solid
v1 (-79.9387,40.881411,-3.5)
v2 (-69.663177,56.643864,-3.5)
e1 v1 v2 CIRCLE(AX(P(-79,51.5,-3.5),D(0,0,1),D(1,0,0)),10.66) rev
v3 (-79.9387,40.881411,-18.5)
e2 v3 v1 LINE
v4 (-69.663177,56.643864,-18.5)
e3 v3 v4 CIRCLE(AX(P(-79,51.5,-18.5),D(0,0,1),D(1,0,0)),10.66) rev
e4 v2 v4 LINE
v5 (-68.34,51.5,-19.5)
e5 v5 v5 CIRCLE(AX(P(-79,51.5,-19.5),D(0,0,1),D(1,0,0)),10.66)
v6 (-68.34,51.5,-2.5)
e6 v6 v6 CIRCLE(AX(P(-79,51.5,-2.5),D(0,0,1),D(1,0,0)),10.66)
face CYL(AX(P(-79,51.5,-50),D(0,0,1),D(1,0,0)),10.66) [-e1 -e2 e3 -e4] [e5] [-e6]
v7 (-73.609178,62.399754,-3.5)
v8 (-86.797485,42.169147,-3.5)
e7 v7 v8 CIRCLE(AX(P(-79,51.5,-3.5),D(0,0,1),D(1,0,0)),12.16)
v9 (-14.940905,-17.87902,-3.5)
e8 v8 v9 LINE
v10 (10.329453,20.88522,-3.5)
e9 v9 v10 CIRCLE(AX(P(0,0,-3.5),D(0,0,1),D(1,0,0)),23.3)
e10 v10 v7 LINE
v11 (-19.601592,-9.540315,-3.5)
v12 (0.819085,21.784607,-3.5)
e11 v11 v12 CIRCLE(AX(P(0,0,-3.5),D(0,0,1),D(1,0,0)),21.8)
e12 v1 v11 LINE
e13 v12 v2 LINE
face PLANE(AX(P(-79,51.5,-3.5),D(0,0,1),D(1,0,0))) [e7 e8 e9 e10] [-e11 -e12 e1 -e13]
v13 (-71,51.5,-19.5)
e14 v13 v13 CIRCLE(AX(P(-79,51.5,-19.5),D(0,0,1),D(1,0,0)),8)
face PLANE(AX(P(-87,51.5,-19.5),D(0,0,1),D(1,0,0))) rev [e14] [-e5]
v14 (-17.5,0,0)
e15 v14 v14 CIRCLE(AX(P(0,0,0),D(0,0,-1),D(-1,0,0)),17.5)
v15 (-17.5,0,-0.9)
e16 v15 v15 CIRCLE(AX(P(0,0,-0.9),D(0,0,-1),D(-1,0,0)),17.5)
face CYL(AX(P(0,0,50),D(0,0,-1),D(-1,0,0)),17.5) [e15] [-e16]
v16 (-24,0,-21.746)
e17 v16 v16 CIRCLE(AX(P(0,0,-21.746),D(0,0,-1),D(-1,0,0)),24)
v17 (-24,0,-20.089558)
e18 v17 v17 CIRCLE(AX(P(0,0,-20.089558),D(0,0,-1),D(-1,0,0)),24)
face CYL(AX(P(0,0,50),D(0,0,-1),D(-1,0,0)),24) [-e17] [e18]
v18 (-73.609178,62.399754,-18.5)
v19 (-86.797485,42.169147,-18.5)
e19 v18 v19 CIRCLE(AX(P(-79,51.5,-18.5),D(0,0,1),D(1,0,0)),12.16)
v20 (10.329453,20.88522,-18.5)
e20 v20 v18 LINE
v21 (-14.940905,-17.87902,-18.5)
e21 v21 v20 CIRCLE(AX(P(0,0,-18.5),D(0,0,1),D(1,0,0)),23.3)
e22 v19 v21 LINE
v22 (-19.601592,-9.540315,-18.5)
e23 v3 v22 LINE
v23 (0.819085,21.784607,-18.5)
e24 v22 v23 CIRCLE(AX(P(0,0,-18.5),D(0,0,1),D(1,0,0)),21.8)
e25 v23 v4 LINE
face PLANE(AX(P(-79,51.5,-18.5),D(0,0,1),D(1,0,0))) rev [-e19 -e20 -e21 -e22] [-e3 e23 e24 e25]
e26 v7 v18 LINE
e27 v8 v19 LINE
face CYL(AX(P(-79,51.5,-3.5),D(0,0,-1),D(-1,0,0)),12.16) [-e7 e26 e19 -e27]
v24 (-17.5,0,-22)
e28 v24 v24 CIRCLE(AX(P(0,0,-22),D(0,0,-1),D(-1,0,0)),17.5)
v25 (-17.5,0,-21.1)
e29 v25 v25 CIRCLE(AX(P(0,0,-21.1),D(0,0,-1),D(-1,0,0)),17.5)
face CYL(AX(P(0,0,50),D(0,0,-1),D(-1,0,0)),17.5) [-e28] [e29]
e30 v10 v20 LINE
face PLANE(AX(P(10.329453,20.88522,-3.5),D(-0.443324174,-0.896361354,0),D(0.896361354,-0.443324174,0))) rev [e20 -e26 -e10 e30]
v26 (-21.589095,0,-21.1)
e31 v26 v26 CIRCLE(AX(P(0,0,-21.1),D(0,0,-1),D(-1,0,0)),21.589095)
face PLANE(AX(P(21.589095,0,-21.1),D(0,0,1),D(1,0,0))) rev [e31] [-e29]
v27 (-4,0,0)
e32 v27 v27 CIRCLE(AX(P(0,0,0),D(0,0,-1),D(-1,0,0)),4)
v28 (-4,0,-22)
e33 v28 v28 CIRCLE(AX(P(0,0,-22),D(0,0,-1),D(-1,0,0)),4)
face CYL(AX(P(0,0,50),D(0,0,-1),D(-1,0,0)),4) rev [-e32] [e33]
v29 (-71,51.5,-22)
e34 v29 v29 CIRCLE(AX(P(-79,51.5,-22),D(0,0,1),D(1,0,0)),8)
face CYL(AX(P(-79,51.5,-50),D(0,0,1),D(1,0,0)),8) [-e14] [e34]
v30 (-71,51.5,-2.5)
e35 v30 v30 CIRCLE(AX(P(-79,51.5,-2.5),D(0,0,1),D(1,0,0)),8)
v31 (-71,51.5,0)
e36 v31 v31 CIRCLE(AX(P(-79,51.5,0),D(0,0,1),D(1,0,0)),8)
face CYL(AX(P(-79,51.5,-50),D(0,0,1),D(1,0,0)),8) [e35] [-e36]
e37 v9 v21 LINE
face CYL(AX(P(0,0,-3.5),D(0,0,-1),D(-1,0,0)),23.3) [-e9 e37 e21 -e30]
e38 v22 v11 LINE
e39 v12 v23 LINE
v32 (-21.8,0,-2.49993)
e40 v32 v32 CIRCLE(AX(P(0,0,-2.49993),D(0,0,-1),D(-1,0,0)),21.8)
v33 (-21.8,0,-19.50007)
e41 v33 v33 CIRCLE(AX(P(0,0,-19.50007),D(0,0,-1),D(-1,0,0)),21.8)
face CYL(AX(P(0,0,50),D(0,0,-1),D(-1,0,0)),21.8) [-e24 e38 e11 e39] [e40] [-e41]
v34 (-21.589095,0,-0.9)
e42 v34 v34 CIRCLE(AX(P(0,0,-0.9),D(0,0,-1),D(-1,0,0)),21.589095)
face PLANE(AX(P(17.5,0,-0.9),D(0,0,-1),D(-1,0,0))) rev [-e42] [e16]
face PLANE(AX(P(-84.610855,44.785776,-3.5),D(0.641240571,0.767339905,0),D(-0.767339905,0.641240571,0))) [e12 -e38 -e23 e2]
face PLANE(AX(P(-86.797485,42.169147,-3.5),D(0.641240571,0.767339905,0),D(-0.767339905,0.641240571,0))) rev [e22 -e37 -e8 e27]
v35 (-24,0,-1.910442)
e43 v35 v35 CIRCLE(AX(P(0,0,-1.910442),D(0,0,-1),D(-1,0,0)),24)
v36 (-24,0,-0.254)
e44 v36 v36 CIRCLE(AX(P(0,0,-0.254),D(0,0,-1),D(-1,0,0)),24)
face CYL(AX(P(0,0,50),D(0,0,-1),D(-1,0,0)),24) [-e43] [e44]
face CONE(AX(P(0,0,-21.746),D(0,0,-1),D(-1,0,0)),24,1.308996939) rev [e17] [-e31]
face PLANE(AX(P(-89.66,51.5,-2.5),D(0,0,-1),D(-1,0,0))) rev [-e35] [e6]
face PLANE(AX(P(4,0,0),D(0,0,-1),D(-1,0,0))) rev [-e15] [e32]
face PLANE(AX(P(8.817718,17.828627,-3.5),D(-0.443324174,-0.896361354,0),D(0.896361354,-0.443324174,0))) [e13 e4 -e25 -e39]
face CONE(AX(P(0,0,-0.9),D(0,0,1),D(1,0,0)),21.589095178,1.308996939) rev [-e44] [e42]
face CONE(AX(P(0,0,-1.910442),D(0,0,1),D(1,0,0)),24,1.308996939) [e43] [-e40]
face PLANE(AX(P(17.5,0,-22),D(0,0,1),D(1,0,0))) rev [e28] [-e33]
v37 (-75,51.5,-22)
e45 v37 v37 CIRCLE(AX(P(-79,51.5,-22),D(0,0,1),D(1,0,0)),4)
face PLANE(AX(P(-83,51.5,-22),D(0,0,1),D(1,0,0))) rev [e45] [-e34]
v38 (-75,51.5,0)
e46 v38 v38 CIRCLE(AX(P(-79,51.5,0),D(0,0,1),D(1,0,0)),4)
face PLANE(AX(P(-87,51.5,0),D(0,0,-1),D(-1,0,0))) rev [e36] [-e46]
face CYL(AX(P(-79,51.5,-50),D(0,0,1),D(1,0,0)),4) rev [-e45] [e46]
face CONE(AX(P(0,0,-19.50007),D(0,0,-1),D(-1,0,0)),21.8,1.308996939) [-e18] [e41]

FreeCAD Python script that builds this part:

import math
import FreeCAD as App
import Part
import Sketcher
from FreeCAD import Vector
Q = App.Units.Quantity

doc = App.newDocument("Part")
body = doc.addObject("PartDesign::Body", "Body")

# Sketch on XZ plane
sketch1 = doc.addObject("Sketcher::SketchObject", "Sketch")
body.addObject(sketch1)
sketch1.AttachmentSupport = (doc.XZ_Plane, [""])
sketch1.MapMode = "FlatFace"
sketch1.addGeometry(Part.LineSegment(Vector(4, 0, 0), Vector(17.5, 0, 0)), False)
sketch1.addGeometry(Part.LineSegment(Vector(17.5, 0, 0), Vector(17.5, -0.9, 0)), False)
sketch1.addGeometry(Part.LineSegment(Vector(17.5, -0.9, 0), Vector(21.6, -0.9, 0)), False)
sketch1.addGeometry(Part.LineSegment(Vector(21.6, -0.9, 0), Vector(24, -0.3, 0)), False)
sketch1.addGeometry(Part.LineSegment(Vector(24, -0.3, 0), Vector(24, -1.9, 0)), False)
sketch1.addGeometry(Part.LineSegment(Vector(24, -1.9, 0), Vector(21.8, -2.5, 0)), False)
sketch1.addGeometry(Part.LineSegment(Vector(21.8, -2.5, 0), Vector(21.8, -19.5, 0)), False)
sketch1.addGeometry(Part.LineSegment(Vector(21.8, -19.5, 0), Vector(24, -20.1, 0)), False)
sketch1.addGeometry(Part.LineSegment(Vector(24, -20.1, 0), Vector(24, -21.7, 0)), False)
sketch1.addGeometry(Part.LineSegment(Vector(24, -21.7, 0), Vector(21.6, -21.1, 0)), False)
sketch1.addGeometry(Part.LineSegment(Vector(21.6, -21.1, 0), Vector(17.5, -21.1, 0)), False)
sketch1.addGeometry(Part.LineSegment(Vector(17.5, -21.1, 0), Vector(17.5, -22, 0)), False)
sketch1.addGeometry(Part.LineSegment(Vector(17.5, -22, 0), Vector(4, -22, 0)), False)
sketch1.addGeometry(Part.LineSegment(Vector(4, -22, 0), Vector(4, 0, 0)), False)
sketch1.addConstraint(Sketcher.Constraint("Coincident", 0, 2, 1, 1))
sketch1.addConstraint(Sketcher.Constraint("Coincident", 1, 2, 2, 1))
sketch1.addConstraint(Sketcher.Constraint("Coincident", 2, 2, 3, 1))
sketch1.addConstraint(Sketcher.Constraint("Coincident", 3, 2, 4, 1))
sketch1.addConstraint(Sketcher.Constraint("Coincident", 4, 2, 5, 1))
sketch1.addConstraint(Sketcher.Constraint("Coincident", 5, 2, 6, 1))
sketch1.addConstraint(Sketcher.Constraint("Coincident", 6, 2, 7, 1))
sketch1.addConstraint(Sketcher.Constraint("Coincident", 7, 2, 8, 1))
sketch1.addConstraint(Sketcher.Constraint("Coincident", 8, 2, 9, 1))
sketch1.addConstraint(Sketcher.Constraint("Coincident", 9, 2, 10, 1))
sketch1.addConstraint(Sketcher.Constraint("Coincident", 10, 2, 11, 1))
sketch1.addConstraint(Sketcher.Constraint("Coincident", 11, 2, 12, 1))
sketch1.addConstraint(Sketcher.Constraint("Coincident", 12, 2, 13, 1))
sketch1.addConstraint(Sketcher.Constraint("Coincident", 13, 2, 0, 1))
sketch1.addConstraint(Sketcher.Constraint("Horizontal", 0))
sketch1.addConstraint(Sketcher.Constraint("Vertical", 1))
sketch1.addConstraint(Sketcher.Constraint("Horizontal", 2))
sketch1.addConstraint(Sketcher.Constraint("Vertical", 4))
sketch1.addConstraint(Sketcher.Constraint("Vertical", 6))
sketch1.addConstraint(Sketcher.Constraint("Vertical", 8))
sketch1.addConstraint(Sketcher.Constraint("Horizontal", 10))
sketch1.addConstraint(Sketcher.Constraint("Vertical", 11))
sketch1.addConstraint(Sketcher.Constraint("Horizontal", 12))
sketch1.addConstraint(Sketcher.Constraint("Vertical", 13))
sketch1.addConstraint(Sketcher.Constraint("PointOnObject", 0, 2, -1))
sketch1.addConstraint(Sketcher.Constraint("Parallel", 3, 5))
sketch1.addConstraint(Sketcher.Constraint("Parallel", 7, 9))
sketch1.addConstraint(Sketcher.Constraint("Vertical", 4, 2, 7, 2))
sketch1.addConstraint(Sketcher.Constraint("Vertical", 2, 2, 9, 2))
sketch1.addConstraint(Sketcher.Constraint("Vertical", 1, 2, 10, 2))
sketch1.addConstraint(Sketcher.Constraint("Equal", 4, 8))
sketch1.addConstraint(Sketcher.Constraint("Equal", 1, 11))
sketch1.addConstraint(Sketcher.Constraint("Equal", 5, 7))
sketch1.addConstraint(Sketcher.Constraint("DistanceY", 13, 1, 13, 2, 22.0))
sketch1.addConstraint(Sketcher.Constraint("Angle", 3, Q("15 deg")))
sketch1.addConstraint(Sketcher.Constraint("DistanceX", 0, 1, 0, 2, 13.5))
sketch1.addConstraint(Sketcher.Constraint("DistanceY", 1, 2, 1, 1, 0.9))
sketch1.addConstraint(Sketcher.Constraint("DistanceX", -1, 1, 3, 2, 24.0))
sketch1.addConstraint(Sketcher.Constraint("DistanceX", -1, 1, 12, 2, 4.0))
sketch1.addConstraint(Sketcher.Constraint("DistanceX", -1, 1, 5, 2, 21.8))
sketch1.addConstraint(Sketcher.Constraint("DistanceY", 3, 2, -1, 1, 0.254))
sketch1.addConstraint(Sketcher.Constraint("DistanceY", 4, 2, 4, 1, 1.656442))
revolution = doc.addObject("PartDesign::Revolution", "Revolution")
body.addObject(revolution)
revolution.Profile = sketch1
revolution.ReferenceAxis = (sketch1, ["V_Axis"])
revolution.Angle = 360

# Sketch on XY plane
sketch2 = doc.addObject("Sketcher::SketchObject", "Sketch001")
body.addObject(sketch2)
sketch2.AttachmentSupport = (doc.XY_Plane, [""])
sketch2.MapMode = "FlatFace"
sketch2.AttachmentOffset = App.Placement(Vector(0, 0, -11), App.Rotation())
sketch2.addGeometry(Part.LineSegment(Vector(-87, 42, 0), Vector(-15, -18, 0)), False)
sketch2.addGeometry(Part.ArcOfCircle(Part.Circle(Vector(0, 0, 0), Vector(0, 0, 1), 23), math.radians(-130), math.radians(64)), False)
sketch2.addGeometry(Part.LineSegment(Vector(10, 21, 0), Vector(-74, 62, 0)), False)
sketch2.addGeometry(Part.ArcOfCircle(Part.Circle(Vector(-79, 52, 0), Vector(0, 0, 1), 12), math.radians(64), math.radians(230)), False)
sketch2.addGeometry(Part.LineSegment(Vector(-13, -15, 0), Vector(-85, 45, 0)), False)
sketch2.addGeometry(Part.ArcOfCircle(Part.Circle(Vector(-79, 52, 0), Vector(0, 0, 1), 9), math.radians(64), math.radians(230)), False)
sketch2.addGeometry(Part.LineSegment(Vector(-75, 59, 0), Vector(9, 18, 0)), False)
sketch2.addGeometry(Part.ArcOfCircle(Part.Circle(Vector(0, 0, 0), Vector(0, 0, 1), 20), math.radians(-130), math.radians(64)), False)
sketch2.addConstraint(Sketcher.Constraint("Tangent", 0, 2, 1, 1))
sketch2.addConstraint(Sketcher.Constraint("Tangent", 1, 2, 2, 1))
sketch2.addConstraint(Sketcher.Constraint("Tangent", 2, 2, 3, 1))
sketch2.addConstraint(Sketcher.Constraint("Tangent", 3, 2, 0, 1))
sketch2.addConstraint(Sketcher.Constraint("Tangent", 4, 2, 5, 2))
sketch2.addConstraint(Sketcher.Constraint("Tangent", 5, 1, 6, 1))
sketch2.addConstraint(Sketcher.Constraint("Tangent", 6, 2, 7, 2))
sketch2.addConstraint(Sketcher.Constraint("Tangent", 7, 1, 4, 1))
sketch2.addConstraint(Sketcher.Constraint("Coincident", 1, 3, -1, 1))
sketch2.addConstraint(Sketcher.Constraint("Coincident", 7, 3, -1, 1))
sketch2.addConstraint(Sketcher.Constraint("Coincident", 5, 3, 3, 3))
sketch2.addConstraint(Sketcher.Constraint("Parallel", 0, 4))
sketch2.addConstraint(Sketcher.Constraint("Radius", 1, 23.3))
sketch2.addConstraint(Sketcher.Constraint("Radius", 3, 12.16))
sketch2.addConstraint(Sketcher.Constraint("Radius", 5, 8.75))
sketch2.addConstraint(Sketcher.Constraint("DistanceX", 3, 3, -1, 1, 79.0))
sketch2.addConstraint(Sketcher.Constraint("DistanceY", -1, 1, 3, 3, 51.5))
pad1 = doc.addObject("PartDesign::Pad", "Pad")
body.addObject(pad1)
pad1.Profile = sketch2
pad1.Type = "TwoLengths"
pad1.Length = 7.5
pad1.Length2 = 7.5

# Sketch on XZ plane
sketch3 = doc.addObject("Sketcher::SketchObject", "Sketch002")
body.addObject(sketch3)
sketch3.AttachmentSupport = (doc.XZ_Plane, [""])
sketch3.MapMode = "FlatFace"
sketch3.AttachmentOffset = App.Placement(Vector(0, 0, -51.5), App.Rotation())
sketch3.addGeometry(Part.LineSegment(Vector(-89.7, -2.5, 0), Vector(-87, -2.5, 0)), False)
sketch3.addGeometry(Part.LineSegment(Vector(-87, -2.5, 0), Vector(-87, 0, 0)), False)
sketch3.addGeometry(Part.LineSegment(Vector(-87, 0, 0), Vector(-83, 0, 0)), False)
sketch3.addGeometry(Part.LineSegment(Vector(-83, 0, 0), Vector(-83, -22, 0)), False)
sketch3.addGeometry(Part.LineSegment(Vector(-83, -22, 0), Vector(-87, -22, 0)), False)
sketch3.addGeometry(Part.LineSegment(Vector(-87, -22, 0), Vector(-87, -19.5, 0)), False)
sketch3.addGeometry(Part.LineSegment(Vector(-87, -19.5, 0), Vector(-89.7, -19.5, 0)), False)
sketch3.addGeometry(Part.LineSegment(Vector(-89.7, -19.5, 0), Vector(-89.7, -2.5, 0)), False)
sketch3.addGeometry(Part.LineSegment(Vector(-79, -22, 0), Vector(-79, 0, 0)), True)  # axis
sketch3.addConstraint(Sketcher.Constraint("Coincident", 0, 2, 1, 1))
sketch3.addConstraint(Sketcher.Constraint("Coincident", 1, 2, 2, 1))
sketch3.addConstraint(Sketcher.Constraint("Coincident", 2, 2, 3, 1))
sketch3.addConstraint(Sketcher.Constraint("Coincident", 3, 2, 4, 1))
sketch3.addConstraint(Sketcher.Constraint("Coincident", 4, 2, 5, 1))
sketch3.addConstraint(Sketcher.Constraint("Coincident", 5, 2, 6, 1))
sketch3.addConstraint(Sketcher.Constraint("Coincident", 6, 2, 7, 1))
sketch3.addConstraint(Sketcher.Constraint("Coincident", 7, 2, 0, 1))
sketch3.addConstraint(Sketcher.Constraint("Horizontal", 0))
sketch3.addConstraint(Sketcher.Constraint("Vertical", 1))
sketch3.addConstraint(Sketcher.Constraint("Horizontal", 2))
sketch3.addConstraint(Sketcher.Constraint("Vertical", 3))
sketch3.addConstraint(Sketcher.Constraint("Horizontal", 4))
sketch3.addConstraint(Sketcher.Constraint("Vertical", 5))
sketch3.addConstraint(Sketcher.Constraint("Horizontal", 6))
sketch3.addConstraint(Sketcher.Constraint("Vertical", 7))
sketch3.addConstraint(Sketcher.Constraint("Vertical", 8))
sketch3.addConstraint(Sketcher.Constraint("PointOnObject", 1, 2, -1))
sketch3.addConstraint(Sketcher.Constraint("PointOnObject", 8, 2, -1))
sketch3.addConstraint(Sketcher.Constraint("Horizontal", 4, 2, 8, 1))
sketch3.addConstraint(Sketcher.Constraint("Vertical", 1, 2, 4, 2))
sketch3.addConstraint(Sketcher.Constraint("Equal", 1, 5))
sketch3.addConstraint(Sketcher.Constraint("DistanceX", 2, 1, 2, 2, 4.0))
sketch3.addConstraint(Sketcher.Constraint("DistanceY", 3, 2, 3, 1, 22.0))
sketch3.addConstraint(Sketcher.Constraint("DistanceY", 7, 1, 7, 2, 17.0))
sketch3.addConstraint(Sketcher.Constraint("DistanceX", 0, 2, -1, 1, 87.0))
sketch3.addConstraint(Sketcher.Constraint("DistanceX", 8, 1, -1, 1, 79.0))
sketch3.addConstraint(Sketcher.Constraint("DistanceX", 0, 1, 0, 2, 2.66))
revolution2 = doc.addObject("PartDesign::Revolution", "Revolution001")
body.addObject(revolution2)
revolution2.Profile = sketch3
revolution2.ReferenceAxis = (sketch3, ["Axis0"])
revolution2.Angle = 360

doc.recompute()
